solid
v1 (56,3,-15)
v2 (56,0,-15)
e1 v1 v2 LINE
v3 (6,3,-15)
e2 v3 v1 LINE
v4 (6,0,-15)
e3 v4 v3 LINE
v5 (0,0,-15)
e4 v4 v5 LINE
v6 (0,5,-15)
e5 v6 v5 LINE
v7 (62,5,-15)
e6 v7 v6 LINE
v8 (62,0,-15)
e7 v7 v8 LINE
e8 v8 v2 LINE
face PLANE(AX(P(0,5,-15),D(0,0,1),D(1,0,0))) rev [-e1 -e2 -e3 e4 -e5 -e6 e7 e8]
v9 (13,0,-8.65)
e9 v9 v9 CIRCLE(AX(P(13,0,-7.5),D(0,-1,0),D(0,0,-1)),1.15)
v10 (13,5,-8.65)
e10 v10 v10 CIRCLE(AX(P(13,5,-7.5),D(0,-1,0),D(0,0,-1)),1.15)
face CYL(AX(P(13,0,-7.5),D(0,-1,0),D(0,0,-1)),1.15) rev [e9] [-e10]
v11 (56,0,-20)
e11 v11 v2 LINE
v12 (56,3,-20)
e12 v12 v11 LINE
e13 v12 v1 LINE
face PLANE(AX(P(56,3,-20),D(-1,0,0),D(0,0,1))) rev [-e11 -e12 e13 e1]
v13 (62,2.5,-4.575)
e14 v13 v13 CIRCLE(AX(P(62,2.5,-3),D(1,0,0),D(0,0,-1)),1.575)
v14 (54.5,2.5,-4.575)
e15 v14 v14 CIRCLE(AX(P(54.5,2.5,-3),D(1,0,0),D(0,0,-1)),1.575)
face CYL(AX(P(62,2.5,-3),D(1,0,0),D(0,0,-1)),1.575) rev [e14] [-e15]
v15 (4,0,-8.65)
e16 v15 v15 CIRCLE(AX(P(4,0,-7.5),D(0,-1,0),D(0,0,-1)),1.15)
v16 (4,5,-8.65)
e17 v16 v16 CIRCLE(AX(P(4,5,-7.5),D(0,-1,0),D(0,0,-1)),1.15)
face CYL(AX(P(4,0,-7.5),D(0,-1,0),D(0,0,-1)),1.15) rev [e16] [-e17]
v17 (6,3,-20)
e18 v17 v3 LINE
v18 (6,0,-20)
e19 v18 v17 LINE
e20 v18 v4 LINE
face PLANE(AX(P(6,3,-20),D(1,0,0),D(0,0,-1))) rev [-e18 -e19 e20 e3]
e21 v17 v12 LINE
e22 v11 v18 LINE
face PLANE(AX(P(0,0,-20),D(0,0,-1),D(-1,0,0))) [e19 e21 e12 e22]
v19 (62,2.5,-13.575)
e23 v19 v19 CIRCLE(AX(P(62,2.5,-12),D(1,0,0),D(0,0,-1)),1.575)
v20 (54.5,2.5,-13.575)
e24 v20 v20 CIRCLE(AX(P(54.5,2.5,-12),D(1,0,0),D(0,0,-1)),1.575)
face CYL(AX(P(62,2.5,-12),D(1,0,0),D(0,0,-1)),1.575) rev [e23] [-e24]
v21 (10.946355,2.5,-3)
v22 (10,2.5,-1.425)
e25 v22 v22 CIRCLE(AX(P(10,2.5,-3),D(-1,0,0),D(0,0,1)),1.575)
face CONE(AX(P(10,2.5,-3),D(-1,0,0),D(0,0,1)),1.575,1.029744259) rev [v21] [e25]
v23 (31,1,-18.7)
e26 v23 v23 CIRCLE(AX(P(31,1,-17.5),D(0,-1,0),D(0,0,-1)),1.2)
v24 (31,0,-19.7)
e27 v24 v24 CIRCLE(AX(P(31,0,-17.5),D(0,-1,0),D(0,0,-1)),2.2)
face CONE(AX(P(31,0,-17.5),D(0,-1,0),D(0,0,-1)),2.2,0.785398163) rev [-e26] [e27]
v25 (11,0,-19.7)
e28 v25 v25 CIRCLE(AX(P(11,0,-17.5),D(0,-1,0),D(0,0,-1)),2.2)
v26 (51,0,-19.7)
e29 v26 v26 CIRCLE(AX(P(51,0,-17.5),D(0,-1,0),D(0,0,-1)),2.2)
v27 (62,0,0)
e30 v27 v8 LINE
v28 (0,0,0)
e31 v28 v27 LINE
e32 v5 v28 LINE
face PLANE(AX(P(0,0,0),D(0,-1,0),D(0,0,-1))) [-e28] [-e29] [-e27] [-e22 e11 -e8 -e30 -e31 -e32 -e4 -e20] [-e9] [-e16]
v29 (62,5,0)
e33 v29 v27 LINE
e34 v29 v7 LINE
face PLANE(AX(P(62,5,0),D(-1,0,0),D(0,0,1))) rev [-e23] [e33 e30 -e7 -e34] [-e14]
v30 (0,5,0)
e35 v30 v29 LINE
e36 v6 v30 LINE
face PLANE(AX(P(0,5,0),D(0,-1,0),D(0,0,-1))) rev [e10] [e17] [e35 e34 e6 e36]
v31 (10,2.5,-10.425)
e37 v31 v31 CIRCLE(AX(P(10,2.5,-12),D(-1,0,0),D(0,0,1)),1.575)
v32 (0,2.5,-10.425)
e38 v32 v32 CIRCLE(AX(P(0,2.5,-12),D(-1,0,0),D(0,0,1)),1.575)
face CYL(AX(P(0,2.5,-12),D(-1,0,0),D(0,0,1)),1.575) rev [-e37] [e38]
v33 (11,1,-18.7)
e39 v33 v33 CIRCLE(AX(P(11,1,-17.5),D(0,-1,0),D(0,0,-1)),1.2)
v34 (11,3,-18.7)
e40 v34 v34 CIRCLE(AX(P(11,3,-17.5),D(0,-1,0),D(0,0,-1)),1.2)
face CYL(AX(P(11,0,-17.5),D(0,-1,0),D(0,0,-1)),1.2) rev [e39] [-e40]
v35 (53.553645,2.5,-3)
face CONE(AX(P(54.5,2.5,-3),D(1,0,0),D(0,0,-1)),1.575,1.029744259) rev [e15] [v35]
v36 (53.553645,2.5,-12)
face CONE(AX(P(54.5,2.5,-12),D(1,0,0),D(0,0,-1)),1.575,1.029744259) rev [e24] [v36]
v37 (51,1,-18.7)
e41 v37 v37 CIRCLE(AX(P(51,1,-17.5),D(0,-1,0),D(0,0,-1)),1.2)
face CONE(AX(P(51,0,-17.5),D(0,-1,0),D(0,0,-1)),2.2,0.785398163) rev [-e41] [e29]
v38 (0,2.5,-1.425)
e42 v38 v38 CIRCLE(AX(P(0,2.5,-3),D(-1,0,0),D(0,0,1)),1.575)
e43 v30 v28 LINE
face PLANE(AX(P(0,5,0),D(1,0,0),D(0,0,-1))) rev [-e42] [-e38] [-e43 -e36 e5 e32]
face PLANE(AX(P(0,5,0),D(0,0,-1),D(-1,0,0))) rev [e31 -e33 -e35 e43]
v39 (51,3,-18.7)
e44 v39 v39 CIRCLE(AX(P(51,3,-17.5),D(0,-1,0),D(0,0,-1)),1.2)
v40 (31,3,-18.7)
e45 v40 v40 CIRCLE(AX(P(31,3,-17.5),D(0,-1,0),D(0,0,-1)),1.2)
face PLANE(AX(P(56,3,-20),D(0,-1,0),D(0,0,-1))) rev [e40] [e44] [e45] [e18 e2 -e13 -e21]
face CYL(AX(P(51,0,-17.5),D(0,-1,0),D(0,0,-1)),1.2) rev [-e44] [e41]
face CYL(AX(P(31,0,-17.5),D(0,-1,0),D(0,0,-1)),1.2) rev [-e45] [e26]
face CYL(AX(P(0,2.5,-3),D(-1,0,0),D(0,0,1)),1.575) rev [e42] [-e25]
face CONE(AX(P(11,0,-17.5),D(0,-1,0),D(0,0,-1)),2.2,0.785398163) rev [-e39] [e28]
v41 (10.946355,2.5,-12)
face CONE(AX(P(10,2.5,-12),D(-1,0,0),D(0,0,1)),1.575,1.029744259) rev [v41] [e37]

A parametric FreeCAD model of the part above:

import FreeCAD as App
import Part
import Sketcher
Q = App.Units.Quantity


def add_polygon(sketch, points):
    """Adds a closed chain of lines whose ends are joined by coincident constraints."""
    first, n = sketch.GeometryCount, len(points)
    for a, b in zip(points, points[1:] + points[:1]):
        sketch.addGeometry(Part.LineSegment(App.Vector(*a, 0), App.Vector(*b, 0)), False)
    for i in range(n):
        sketch.addConstraint(Sketcher.Constraint("Coincident", first + i, 2, first + (i + 1) % n, 1))

doc = App.newDocument("Part")
body = doc.addObject("PartDesign::Body", "Body")

sketch1 = doc.addObject("Sketcher::SketchObject", "Sketch")
body.addObject(sketch1)
sketch1.AttachmentSupport = (doc.XZ_Plane, [""])
sketch1.MapMode = "FlatFace"
add_polygon(sketch1, [(0, -15), (0, 0), (62, 0), (62, -15)])
sketch1.addConstraint([
    Sketcher.Constraint("Vertical", 0),
    Sketcher.Constraint("Horizontal", 1),
    Sketcher.Constraint("Vertical", 2),
    Sketcher.Constraint("Horizontal", 3),
    Sketcher.Constraint("Coincident", 0, 2, -1, 1),
    Sketcher.Constraint("DistanceX", 1, 1, 1, 2, Q("62 mm")),
    Sketcher.Constraint("DistanceY", 0, 1, 0, 2, Q("15 mm")),
])
pad1 = doc.addObject("PartDesign::Pad", "Pad")
body.addObject(pad1)
pad1.Profile = sketch1
pad1.Length = 5
pad1.Reversed = True

sketch2 = doc.addObject("Sketcher::SketchObject", "Sketch001")
body.addObject(sketch2)
sketch2.AttachmentSupport = (doc.YZ_Plane, [""])
sketch2.MapMode = "FlatFace"
sketch2.addGeometry([
    Part.Circle(App.Vector(2.5, -12, 0), App.Vector(0, 0, 1), 1.6),
    Part.Circle(App.Vector(2.5, -3, 0), App.Vector(0, 0, 1), 1.6),
], False)
sketch2.addConstraint([
    Sketcher.Constraint("Equal", 0, 1),
    Sketcher.Constraint("Vertical", 0, 3, 1, 3),
    Sketcher.Constraint("Diameter", 0, Q("3.15 mm")),
    Sketcher.Constraint("DistanceY", 0, 3, -1, 1, Q("12 mm")),
    Sketcher.Constraint("DistanceY", 1, 3, -1, 1, Q("3 mm")),
    Sketcher.Constraint("DistanceX", -1, 1, 0, 3, Q("2.5 mm")),
])
doc.recompute()
hole = doc.addObject("PartDesign::Hole", "Hole")
body.addObject(hole)
hole.Profile = sketch2
hole.ThreadType = "None"
hole.Diameter = 3.15
hole.DepthType = "Dimension"
hole.Depth = 10
hole.DrillPoint = "Angled"
hole.DrillPointAngle = 118
hole.Reversed = True

sketch3 = doc.addObject("Sketcher::SketchObject", "Sketch002")
body.addObject(sketch3)
sketch3.AttachmentSupport = (doc.YZ_Plane, [""])
sketch3.MapMode = "FlatFace"
sketch3.AttachmentOffset = App.Placement(App.Vector(0, 0, 62), App.Rotation())
sketch3.addGeometry([
    Part.Circle(App.Vector(2.5, -3, 0), App.Vector(0, 0, 1), 1.6),
    Part.Circle(App.Vector(2.5, -12, 0), App.Vector(0, 0, 1), 1.6),
], False)
sketch3.addConstraint([
    Sketcher.Constraint("Equal", 0, 1),
    Sketcher.Constraint("Vertical", 0, 3, 1, 3),
    Sketcher.Constraint("Diameter", 0, Q("3.15 mm")),
    Sketcher.Constraint("DistanceY", 0, 3, -1, 1, Q("3 mm")),
    Sketcher.Constraint("DistanceY", 1, 3, -1, 1, Q("12 mm")),
    Sketcher.Constraint("DistanceX", -1, 1, 0, 3, Q("2.5 mm")),
])
doc.recompute()
hole2 = doc.addObject("PartDesign::Hole", "Hole001")
body.addObject(hole2)
hole2.Profile = sketch3
hole2.ThreadType = "None"
hole2.Diameter = 3.15
hole2.DepthType = "Dimension"
hole2.Depth = 7.5
hole2.DrillPoint = "Angled"
hole2.DrillPointAngle = 118

sketch4 = doc.addObject("Sketcher::SketchObject", "Sketch003")
body.addObject(sketch4)
sketch4.AttachmentSupport = (doc.XZ_Plane, [""])
sketch4.MapMode = "FlatFace"
sketch4.addGeometry([
    Part.Circle(App.Vector(4, -7.5, 0), App.Vector(0, 0, 1), 1.1),
    Part.Circle(App.Vector(13, -7.5, 0), App.Vector(0, 0, 1), 1.1),
], False)
sketch4.addConstraint([
    Sketcher.Constraint("Equal", 0, 1),
    Sketcher.Constraint("Horizontal", 0, 3, 1, 3),
    Sketcher.Constraint("Diameter", 0, Q("2.3 mm")),
    Sketcher.Constraint("DistanceX", -1, 1, 0, 3, Q("4 mm")),
    Sketcher.Constraint("DistanceX", -1, 1, 1, 3, Q("13 mm")),
    Sketcher.Constraint("DistanceY", 0, 3, -1, 1, Q("7.5 mm")),
])
doc.recompute()
hole3 = doc.addObject("PartDesign::Hole", "Hole002")
body.addObject(hole3)
hole3.Profile = sketch4
hole3.ThreadType = "None"
hole3.Diameter = 2.3
hole3.DepthType = "ThroughAll"

sketch5 = doc.addObject("Sketcher::SketchObject", "Sketch004")
body.addObject(sketch5)
sketch5.AttachmentSupport = (doc.XY_Plane, [""])
sketch5.MapMode = "FlatFace"
sketch5.AttachmentOffset = App.Placement(App.Vector(0, 0, -15), App.Rotation())
add_polygon(sketch5, [(56, 3), (56, 0), (6, 0), (6, 3)])
sketch5.addConstraint([
    Sketcher.Constraint("Vertical", 0),
    Sketcher.Constraint("Horizontal", 1),
    Sketcher.Constraint("Vertical", 2),
    Sketcher.Constraint("Horizontal", 3),
    Sketcher.Constraint("PointOnObject", 0, 2, -1),
    Sketcher.Constraint("DistanceX", 1, 2, 1, 1, Q("50 mm")),
    Sketcher.Constraint("DistanceY", 0, 2, 0, 1, Q("3 mm")),
    Sketcher.Constraint("DistanceX", -1, 1, 0, 2, Q("56 mm")),
])
pad2 = doc.addObject("PartDesign::Pad", "Pad001")
body.addObject(pad2)
pad2.Profile = sketch5
pad2.Length = 5
pad2.Reversed = True

sketch6 = doc.addObject("Sketcher::SketchObject", "Sketch005")
body.addObject(sketch6)
sketch6.AttachmentSupport = (doc.XZ_Plane, [""])
sketch6.MapMode = "FlatFace"
sketch6.addGeometry([
    Part.Circle(App.Vector(11, -17.5, 0), App.Vector(0, 0, 1), 1.2),
    Part.Circle(App.Vector(51, -17.5, 0), App.Vector(0, 0, 1), 1.2),
    Part.Circle(App.Vector(31, -17.5, 0), App.Vector(0, 0, 1), 1.2),
], False)
sketch6.addConstraint([
    Sketcher.Constraint("Equal", 0, 1),
    Sketcher.Constraint("Equal", 1, 2),
    Sketcher.Constraint("Horizontal", 0, 3, 1, 3),
    Sketcher.Constraint("Horizontal", 1, 3, 2, 3),
    Sketcher.Constraint("Diameter", 0, Q("2.4 mm")),
    Sketcher.Constraint("DistanceX", -1, 1, 0, 3, Q("11 mm")),
    Sketcher.Constraint("DistanceX", -1, 1, 1, 3, Q("51 mm")),
    Sketcher.Constraint("DistanceX", -1, 1, 2, 3, Q("31 mm")),
    Sketcher.Constraint("DistanceY", 0, 3, -1, 1, Q("17.5 mm")),
])
doc.recompute()
hole4 = doc.addObject("PartDesign::Hole", "Hole003")
body.addObject(hole4)
hole4.Profile = sketch6
hole4.ThreadType = "None"
hole4.Diameter = 2.4
hole4.DepthType = "ThroughAll"
hole4.HoleCutType = "Countersink"
hole4.HoleCutDiameter = 4.4
hole4.HoleCutCountersinkAngle = 90

doc.recompute()
